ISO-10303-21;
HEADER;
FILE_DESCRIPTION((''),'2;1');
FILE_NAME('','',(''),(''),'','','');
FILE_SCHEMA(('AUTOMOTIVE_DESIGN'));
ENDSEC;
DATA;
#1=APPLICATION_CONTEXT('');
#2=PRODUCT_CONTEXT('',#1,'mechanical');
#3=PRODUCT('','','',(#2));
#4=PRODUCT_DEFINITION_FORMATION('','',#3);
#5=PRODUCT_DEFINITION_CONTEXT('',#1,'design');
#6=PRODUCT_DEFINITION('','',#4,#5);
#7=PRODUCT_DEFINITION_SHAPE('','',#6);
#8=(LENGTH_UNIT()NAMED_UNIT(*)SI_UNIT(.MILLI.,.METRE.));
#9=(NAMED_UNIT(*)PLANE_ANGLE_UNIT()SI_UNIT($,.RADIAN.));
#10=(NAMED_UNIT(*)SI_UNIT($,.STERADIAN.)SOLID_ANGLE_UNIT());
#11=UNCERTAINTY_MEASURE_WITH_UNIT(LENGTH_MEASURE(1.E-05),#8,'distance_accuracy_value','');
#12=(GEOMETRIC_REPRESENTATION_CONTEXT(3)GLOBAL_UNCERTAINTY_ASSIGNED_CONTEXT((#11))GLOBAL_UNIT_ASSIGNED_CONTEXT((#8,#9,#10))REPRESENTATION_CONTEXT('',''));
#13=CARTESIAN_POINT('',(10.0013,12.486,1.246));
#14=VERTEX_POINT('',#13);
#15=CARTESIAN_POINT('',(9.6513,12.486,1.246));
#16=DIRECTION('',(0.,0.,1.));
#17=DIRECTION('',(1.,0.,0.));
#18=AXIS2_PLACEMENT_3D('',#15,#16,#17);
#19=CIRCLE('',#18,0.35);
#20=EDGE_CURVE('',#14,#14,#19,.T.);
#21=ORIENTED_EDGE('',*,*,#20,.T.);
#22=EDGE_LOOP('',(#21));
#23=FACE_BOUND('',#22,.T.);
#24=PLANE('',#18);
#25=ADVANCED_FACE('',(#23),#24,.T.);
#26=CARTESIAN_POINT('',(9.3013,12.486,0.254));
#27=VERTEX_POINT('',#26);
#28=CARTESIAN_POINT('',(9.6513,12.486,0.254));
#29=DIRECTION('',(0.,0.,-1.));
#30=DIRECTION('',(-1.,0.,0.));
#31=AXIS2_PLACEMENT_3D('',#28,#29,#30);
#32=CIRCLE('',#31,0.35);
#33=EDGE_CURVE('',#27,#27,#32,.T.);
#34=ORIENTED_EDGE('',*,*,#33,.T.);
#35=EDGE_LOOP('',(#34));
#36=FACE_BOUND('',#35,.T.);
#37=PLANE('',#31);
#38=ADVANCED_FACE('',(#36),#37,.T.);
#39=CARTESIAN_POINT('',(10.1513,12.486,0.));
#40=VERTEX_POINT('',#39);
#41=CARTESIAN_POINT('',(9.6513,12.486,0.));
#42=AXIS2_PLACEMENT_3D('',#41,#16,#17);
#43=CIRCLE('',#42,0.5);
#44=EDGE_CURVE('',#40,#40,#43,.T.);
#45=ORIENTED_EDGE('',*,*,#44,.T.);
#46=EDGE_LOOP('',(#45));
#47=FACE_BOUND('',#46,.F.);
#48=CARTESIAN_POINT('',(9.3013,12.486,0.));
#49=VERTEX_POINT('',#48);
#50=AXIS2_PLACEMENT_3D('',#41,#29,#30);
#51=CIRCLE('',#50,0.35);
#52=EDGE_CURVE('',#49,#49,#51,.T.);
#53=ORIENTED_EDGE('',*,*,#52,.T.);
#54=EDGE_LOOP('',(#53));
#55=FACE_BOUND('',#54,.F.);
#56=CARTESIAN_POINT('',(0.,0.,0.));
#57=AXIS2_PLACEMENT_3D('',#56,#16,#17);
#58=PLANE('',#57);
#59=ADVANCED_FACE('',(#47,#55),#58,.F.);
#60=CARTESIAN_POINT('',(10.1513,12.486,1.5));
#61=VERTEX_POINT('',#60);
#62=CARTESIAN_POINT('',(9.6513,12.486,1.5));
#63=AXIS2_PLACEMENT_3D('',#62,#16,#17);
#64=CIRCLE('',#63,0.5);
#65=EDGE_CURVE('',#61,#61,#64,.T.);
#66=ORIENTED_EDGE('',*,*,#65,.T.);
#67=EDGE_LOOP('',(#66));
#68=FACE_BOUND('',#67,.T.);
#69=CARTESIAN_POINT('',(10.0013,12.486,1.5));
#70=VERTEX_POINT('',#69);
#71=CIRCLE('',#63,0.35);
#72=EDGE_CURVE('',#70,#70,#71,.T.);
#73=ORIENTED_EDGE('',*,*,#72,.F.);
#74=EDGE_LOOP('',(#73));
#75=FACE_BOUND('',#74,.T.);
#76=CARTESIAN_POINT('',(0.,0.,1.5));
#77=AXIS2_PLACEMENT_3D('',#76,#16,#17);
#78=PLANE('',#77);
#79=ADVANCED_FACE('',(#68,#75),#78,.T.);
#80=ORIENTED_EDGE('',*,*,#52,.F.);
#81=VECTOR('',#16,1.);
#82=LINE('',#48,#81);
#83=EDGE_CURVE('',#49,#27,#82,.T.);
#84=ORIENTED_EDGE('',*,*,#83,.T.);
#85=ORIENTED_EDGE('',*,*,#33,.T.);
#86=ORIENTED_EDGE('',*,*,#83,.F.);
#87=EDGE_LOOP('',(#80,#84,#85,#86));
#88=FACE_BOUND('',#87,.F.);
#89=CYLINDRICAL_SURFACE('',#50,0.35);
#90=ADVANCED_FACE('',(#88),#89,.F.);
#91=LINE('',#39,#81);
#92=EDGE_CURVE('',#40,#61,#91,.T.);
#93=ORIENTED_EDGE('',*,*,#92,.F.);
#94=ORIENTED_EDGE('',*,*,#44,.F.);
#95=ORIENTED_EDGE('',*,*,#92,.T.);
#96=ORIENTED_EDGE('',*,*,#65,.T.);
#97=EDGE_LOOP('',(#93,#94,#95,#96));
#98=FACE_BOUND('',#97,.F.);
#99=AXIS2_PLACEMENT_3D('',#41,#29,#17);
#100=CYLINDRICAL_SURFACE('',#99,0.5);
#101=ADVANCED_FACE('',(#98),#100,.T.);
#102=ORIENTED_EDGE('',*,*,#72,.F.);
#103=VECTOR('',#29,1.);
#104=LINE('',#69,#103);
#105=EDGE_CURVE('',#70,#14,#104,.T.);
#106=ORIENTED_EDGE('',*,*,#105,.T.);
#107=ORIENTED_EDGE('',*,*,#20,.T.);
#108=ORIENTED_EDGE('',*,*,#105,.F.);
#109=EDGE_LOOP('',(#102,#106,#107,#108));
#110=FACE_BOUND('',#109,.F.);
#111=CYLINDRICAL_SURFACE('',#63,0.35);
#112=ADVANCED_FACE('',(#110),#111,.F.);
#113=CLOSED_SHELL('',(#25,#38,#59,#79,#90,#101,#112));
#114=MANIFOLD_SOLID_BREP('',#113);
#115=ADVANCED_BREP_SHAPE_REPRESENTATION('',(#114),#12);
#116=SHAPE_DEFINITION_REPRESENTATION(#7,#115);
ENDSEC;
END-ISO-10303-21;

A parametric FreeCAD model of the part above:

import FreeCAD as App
import Part
import Sketcher

doc = App.newDocument("Part")
body = doc.addObject("PartDesign::Body", "Body")

sketch1 = body.newObject("Sketcher::SketchObject", "Sketch")
sketch1.AttachmentSupport = (doc.getObject("XY_Plane"), [""])
sketch1.MapMode = "FlatFace"
sketch1.addGeometry(Part.Circle(App.Vector(9.7, 12.5, 0), App.Vector(0, 0, 1), 0.5), False)
sketch1.addConstraint([
    Sketcher.Constraint("Diameter", 0, 1.0),
    Sketcher.Constraint("DistanceY", -1, 1, 0, 3, 12.486),
    Sketcher.Constraint("DistanceX", -1, 1, 0, 3, 9.6513),
])
pad1 = body.newObject("PartDesign::Pad", "Pad")
pad1.Profile = sketch1
pad1.Length = 1.5

sketch2 = body.newObject("Sketcher::SketchObject", "Sketch001")
sketch2.AttachmentSupport = (doc.getObject("XY_Plane"), [""])
sketch2.MapMode = "FlatFace"
sketch2.AttachmentOffset = App.Placement(App.Vector(0, 0, 1.5), App.Rotation())
sketch2.addGeometry(Part.Circle(App.Vector(9.65, 12.49, 0), App.Vector(0, 0, 1), 0.35), False)
sketch2.addConstraint([
    Sketcher.Constraint("Diameter", 0, 0.7),
    Sketcher.Constraint("DistanceY", -1, 1, 0, 3, 12.486),
    Sketcher.Constraint("DistanceX", -1, 1, 0, 3, 9.6513),
])
pocket1 = body.newObject("PartDesign::Pocket", "Pocket")
pocket1.Profile = sketch2
pocket1.Length = 0.254

sketch3 = body.newObject("Sketcher::SketchObject", "Sketch002")
sketch3.AttachmentSupport = (doc.getObject("XY_Plane"), [""])
sketch3.MapMode = "FlatFace"
sketch3.addGeometry(Part.Circle(App.Vector(9.65, 12.49, 0), App.Vector(0, 0, 1), 0.35), False)
sketch3.addConstraint([
    Sketcher.Constraint("Diameter", 0, 0.7),
    Sketcher.Constraint("DistanceY", -1, 1, 0, 3, 12.486),
    Sketcher.Constraint("DistanceX", -1, 1, 0, 3, 9.6513),
])
pocket2 = body.newObject("PartDesign::Pocket", "Pocket001")
pocket2.Profile = sketch3
pocket2.Length = 0.254
pocket2.Reversed = True

doc.recompute()
